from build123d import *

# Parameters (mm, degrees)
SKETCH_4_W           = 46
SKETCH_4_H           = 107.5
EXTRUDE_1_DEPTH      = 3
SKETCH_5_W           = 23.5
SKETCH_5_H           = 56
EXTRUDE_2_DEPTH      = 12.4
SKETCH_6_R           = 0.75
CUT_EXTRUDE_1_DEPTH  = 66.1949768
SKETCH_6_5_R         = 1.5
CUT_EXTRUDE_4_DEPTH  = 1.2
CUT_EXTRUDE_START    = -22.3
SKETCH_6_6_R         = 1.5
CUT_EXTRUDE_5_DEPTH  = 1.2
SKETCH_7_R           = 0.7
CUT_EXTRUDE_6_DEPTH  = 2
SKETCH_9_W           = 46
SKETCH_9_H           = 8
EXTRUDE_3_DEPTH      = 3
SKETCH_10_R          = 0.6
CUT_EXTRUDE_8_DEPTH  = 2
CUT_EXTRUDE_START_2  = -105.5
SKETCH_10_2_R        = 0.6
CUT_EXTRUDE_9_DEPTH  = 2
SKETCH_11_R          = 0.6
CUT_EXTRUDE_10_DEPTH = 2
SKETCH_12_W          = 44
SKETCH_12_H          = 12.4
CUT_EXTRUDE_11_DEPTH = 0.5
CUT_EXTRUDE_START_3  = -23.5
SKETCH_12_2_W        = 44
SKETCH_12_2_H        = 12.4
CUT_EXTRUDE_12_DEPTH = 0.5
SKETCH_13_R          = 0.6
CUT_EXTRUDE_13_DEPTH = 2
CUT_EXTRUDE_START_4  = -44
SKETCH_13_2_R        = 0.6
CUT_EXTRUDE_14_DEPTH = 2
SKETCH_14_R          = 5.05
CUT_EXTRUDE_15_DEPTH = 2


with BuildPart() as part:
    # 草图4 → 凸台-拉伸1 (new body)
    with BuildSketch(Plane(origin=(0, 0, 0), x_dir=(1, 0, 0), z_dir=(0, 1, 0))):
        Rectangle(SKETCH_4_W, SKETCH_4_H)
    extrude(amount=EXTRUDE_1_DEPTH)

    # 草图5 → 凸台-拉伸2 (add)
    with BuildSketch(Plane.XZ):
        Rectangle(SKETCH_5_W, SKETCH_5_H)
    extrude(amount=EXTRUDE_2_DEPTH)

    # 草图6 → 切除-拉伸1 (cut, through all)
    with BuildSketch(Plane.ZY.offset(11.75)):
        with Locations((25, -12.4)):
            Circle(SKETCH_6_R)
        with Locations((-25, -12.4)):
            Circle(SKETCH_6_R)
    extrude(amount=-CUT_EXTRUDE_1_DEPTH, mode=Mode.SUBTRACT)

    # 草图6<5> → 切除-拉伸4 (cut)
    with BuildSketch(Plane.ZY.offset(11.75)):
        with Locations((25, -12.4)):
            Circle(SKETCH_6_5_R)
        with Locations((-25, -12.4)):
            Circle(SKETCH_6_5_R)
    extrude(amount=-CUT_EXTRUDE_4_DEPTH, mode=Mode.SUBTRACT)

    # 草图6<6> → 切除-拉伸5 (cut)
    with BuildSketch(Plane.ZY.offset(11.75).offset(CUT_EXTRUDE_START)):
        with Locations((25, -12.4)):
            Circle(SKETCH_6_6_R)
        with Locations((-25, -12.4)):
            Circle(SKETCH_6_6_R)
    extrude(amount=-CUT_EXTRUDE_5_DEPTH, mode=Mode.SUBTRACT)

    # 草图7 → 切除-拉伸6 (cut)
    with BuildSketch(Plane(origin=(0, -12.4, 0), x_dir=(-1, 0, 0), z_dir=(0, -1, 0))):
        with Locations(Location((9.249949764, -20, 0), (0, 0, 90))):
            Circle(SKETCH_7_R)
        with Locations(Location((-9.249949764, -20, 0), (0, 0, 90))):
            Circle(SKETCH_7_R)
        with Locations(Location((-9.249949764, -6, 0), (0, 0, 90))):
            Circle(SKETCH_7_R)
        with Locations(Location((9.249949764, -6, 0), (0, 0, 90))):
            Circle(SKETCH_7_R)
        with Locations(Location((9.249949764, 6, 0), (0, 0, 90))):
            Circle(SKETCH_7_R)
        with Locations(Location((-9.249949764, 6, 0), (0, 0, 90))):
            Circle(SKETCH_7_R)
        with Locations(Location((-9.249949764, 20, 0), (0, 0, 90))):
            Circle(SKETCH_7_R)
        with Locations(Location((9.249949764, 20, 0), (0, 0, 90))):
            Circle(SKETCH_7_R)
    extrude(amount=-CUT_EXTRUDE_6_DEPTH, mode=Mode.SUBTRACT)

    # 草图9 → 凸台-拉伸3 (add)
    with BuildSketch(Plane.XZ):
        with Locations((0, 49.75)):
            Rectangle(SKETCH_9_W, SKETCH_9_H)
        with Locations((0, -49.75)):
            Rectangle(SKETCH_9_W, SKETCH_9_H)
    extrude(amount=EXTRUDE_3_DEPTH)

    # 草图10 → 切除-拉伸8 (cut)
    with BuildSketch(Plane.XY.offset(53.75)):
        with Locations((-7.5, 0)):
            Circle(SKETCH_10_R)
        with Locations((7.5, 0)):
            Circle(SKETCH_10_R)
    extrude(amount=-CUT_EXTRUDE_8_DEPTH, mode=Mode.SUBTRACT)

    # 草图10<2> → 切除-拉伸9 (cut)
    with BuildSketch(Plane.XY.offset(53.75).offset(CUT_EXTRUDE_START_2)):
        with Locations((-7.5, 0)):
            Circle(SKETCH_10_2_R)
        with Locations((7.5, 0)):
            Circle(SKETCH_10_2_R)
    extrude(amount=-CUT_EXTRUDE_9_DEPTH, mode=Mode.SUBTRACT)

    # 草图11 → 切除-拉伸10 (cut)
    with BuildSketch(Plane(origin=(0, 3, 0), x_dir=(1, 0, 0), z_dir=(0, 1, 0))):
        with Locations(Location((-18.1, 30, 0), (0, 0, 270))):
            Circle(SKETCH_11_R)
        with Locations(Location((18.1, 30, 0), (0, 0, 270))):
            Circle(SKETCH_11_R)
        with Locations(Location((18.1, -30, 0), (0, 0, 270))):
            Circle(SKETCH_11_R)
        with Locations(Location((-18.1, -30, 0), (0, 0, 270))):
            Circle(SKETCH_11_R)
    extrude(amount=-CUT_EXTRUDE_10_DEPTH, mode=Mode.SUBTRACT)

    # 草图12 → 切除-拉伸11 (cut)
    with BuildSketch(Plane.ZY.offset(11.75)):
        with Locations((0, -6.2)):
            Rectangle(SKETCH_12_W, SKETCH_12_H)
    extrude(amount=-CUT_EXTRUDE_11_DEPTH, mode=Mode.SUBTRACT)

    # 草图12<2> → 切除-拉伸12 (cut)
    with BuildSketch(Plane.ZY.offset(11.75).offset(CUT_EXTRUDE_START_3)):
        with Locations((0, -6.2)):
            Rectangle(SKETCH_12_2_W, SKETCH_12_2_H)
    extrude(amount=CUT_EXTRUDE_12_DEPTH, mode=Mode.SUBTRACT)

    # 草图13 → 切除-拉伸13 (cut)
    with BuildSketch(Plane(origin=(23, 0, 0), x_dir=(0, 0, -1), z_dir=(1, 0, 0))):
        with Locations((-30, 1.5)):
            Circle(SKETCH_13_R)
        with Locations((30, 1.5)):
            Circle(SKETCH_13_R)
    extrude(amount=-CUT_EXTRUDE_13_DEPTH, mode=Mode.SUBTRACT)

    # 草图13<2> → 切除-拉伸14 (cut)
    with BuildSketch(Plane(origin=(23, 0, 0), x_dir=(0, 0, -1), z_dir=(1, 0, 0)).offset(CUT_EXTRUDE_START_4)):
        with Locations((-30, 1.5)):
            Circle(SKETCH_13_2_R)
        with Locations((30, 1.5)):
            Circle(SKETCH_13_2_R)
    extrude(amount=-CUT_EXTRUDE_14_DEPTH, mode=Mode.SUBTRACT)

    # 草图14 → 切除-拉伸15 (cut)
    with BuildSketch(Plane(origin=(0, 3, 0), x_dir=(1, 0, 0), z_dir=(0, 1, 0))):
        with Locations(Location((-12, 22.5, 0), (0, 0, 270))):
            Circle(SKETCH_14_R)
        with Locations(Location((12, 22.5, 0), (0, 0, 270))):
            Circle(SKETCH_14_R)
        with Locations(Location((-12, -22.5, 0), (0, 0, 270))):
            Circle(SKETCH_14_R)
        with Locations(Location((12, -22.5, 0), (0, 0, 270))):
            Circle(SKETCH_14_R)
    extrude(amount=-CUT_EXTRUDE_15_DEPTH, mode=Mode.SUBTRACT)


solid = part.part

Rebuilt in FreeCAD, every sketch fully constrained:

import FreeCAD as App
import Part
import Sketcher

V = App.Vector
Q = App.Units.Quantity

doc = App.newDocument("Part")
body = doc.addObject("PartDesign::Body", "Body")

# Sketch on XZ plane
sketch1 = body.newObject("Sketcher::SketchObject", "Sketch")
sketch1.AttachmentSupport = (doc.getObject("XZ_Plane"), [""])
sketch1.MapMode = "FlatFace"
sketch1.addGeometry([
    Part.LineSegment(V(-23, -54, 0), V(-23, 54, 0)),
    Part.LineSegment(V(-23, 54, 0), V(23, 54, 0)),
    Part.LineSegment(V(23, 54, 0), V(23, -54, 0)),
    Part.LineSegment(V(23, -54, 0), V(-23, -54, 0)),
], False)
sketch1.addConstraint([
    Sketcher.Constraint("Coincident", 0, 2, 1, 1),
    Sketcher.Constraint("Coincident", 1, 2, 2, 1),
    Sketcher.Constraint("Coincident", 2, 2, 3, 1),
    Sketcher.Constraint("Coincident", 3, 2, 0, 1),
    Sketcher.Constraint("Vertical", 0),
    Sketcher.Constraint("Horizontal", 1),
    Sketcher.Constraint("Vertical", 2),
    Sketcher.Constraint("Horizontal", 3),
    Sketcher.Constraint("Symmetric", 0, 2, 2, 2, -1, 1),
    Sketcher.Constraint("DistanceX", 1, 1, 1, 2, Q("46 mm")),
    Sketcher.Constraint("DistanceY", 0, 1, 0, 2, Q("107.5 mm")),
])
pad1 = body.newObject("PartDesign::Pad", "Pad")
pad1.Profile = sketch1
pad1.Length = 3
pad1.Reversed = True

# Sketch on XZ plane
sketch2 = body.newObject("Sketcher::SketchObject", "Sketch001")
sketch2.AttachmentSupport = (doc.getObject("XZ_Plane"), [""])
sketch2.MapMode = "FlatFace"
sketch2.addGeometry([
    Part.LineSegment(V(-12, 28, 0), V(-12, -28, 0)),
    Part.LineSegment(V(-12, -28, 0), V(12, -28, 0)),
    Part.LineSegment(V(12, -28, 0), V(12, 28, 0)),
    Part.LineSegment(V(12, 28, 0), V(-12, 28, 0)),
], False)
sketch2.addConstraint([
    Sketcher.Constraint("Coincident", 0, 2, 1, 1),
    Sketcher.Constraint("Coincident", 1, 2, 2, 1),
    Sketcher.Constraint("Coincident", 2, 2, 3, 1),
    Sketcher.Constraint("Coincident", 3, 2, 0, 1),
    Sketcher.Constraint("Vertical", 0),
    Sketcher.Constraint("Horizontal", 1),
    Sketcher.Constraint("Vertical", 2),
    Sketcher.Constraint("Horizontal", 3),
    Sketcher.Constraint("Symmetric", 0, 2, 2, 2, -1, 1),
    Sketcher.Constraint("DistanceY", 0, 2, 0, 1, Q("56 mm")),
    Sketcher.Constraint("DistanceX", 1, 1, 1, 2, Q("23.5 mm")),
])
pad2 = body.newObject("PartDesign::Pad", "Pad001")
pad2.Profile = sketch2
pad2.Length = 12.4

# Sketch on YZ plane
sketch3 = body.newObject("Sketcher::SketchObject", "Sketch002")
sketch3.AttachmentSupport = (doc.getObject("YZ_Plane"), [""])
sketch3.MapMode = "FlatFace"
sketch3.AttachmentOffset = App.Placement(V(0, 0, -11.75), App.Rotation())
sketch3.addGeometry([
    Part.Circle(V(-12.4, 25, 0), V(0, 0, 1), 0.8),
    Part.Circle(V(-12.4, -25, 0), V(0, 0, 1), 0.8),
], False)
sketch3.addConstraint([
    Sketcher.Constraint("Equal", 0, 1),
    Sketcher.Constraint("Symmetric", 0, 3, 1, 3, -1),
    Sketcher.Constraint("Diameter", 0, Q("1.5 mm")),
    Sketcher.Constraint("DistanceY", -1, 1, 0, 3, Q("25 mm")),
    Sketcher.Constraint("DistanceX", 0, 3, -1, 1, Q("12.4 mm")),
])
pocket1 = body.newObject("PartDesign::Pocket", "Pocket")
pocket1.Profile = sketch3
pocket1.Type = "ThroughAll"
pocket1.Reversed = True

# Sketch on YZ plane
sketch4 = body.newObject("Sketcher::SketchObject", "Sketch003")
sketch4.AttachmentSupport = (doc.getObject("YZ_Plane"), [""])
sketch4.MapMode = "FlatFace"
sketch4.AttachmentOffset = App.Placement(V(0, 0, -11.75), App.Rotation())
sketch4.addGeometry([
    Part.Circle(V(-12.4, 25, 0), V(0, 0, 1), 1.5),
    Part.Circle(V(-12.4, -25, 0), V(0, 0, 1), 1.5),
], False)
sketch4.addConstraint([
    Sketcher.Constraint("Equal", 0, 1),
    Sketcher.Constraint("Symmetric", 0, 3, 1, 3, -1),
    Sketcher.Constraint("Diameter", 0, Q("3 mm")),
    Sketcher.Constraint("DistanceY", -1, 1, 0, 3, Q("25 mm")),
    Sketcher.Constraint("DistanceX", 0, 3, -1, 1, Q("12.4 mm")),
])
pocket2 = body.newObject("PartDesign::Pocket", "Pocket001")
pocket2.Profile = sketch4
pocket2.Length = 1.2
pocket2.Reversed = True

# Sketch on YZ plane
sketch5 = body.newObject("Sketcher::SketchObject", "Sketch004")
sketch5.AttachmentSupport = (doc.getObject("YZ_Plane"), [""])
sketch5.MapMode = "FlatFace"
sketch5.AttachmentOffset = App.Placement(V(0, 0, 10.55), App.Rotation())
sketch5.addGeometry([
    Part.Circle(V(-12.4, 25, 0), V(0, 0, 1), 1.5),
    Part.Circle(V(-12.4, -25, 0), V(0, 0, 1), 1.5),
], False)
sketch5.addConstraint([
    Sketcher.Constraint("Equal", 0, 1),
    Sketcher.Constraint("Symmetric", 0, 3, 1, 3, -1),
    Sketcher.Constraint("Diameter", 0, Q("3 mm")),
    Sketcher.Constraint("DistanceY", -1, 1, 0, 3, Q("25 mm")),
    Sketcher.Constraint("DistanceX", 0, 3, -1, 1, Q("12.4 mm")),
])
pocket3 = body.newObject("PartDesign::Pocket", "Pocket002")
pocket3.Profile = sketch5
pocket3.Length = 1.2
pocket3.Reversed = True

# Sketch on XZ plane
sketch6 = body.newObject("Sketcher::SketchObject", "Sketch005")
sketch6.AttachmentSupport = (doc.getObject("XZ_Plane"), [""])
sketch6.MapMode = "FlatFace"
sketch6.AttachmentOffset = App.Placement(V(0, 0, 12.4), App.Rotation())
sketch6.addGeometry([
    Part.Circle(V(-9.2, 20, 0), V(0, 0, 1), 0.7),  # 0
    Part.Circle(V(9.2, 20, 0), V(0, 0, 1), 0.7),  # 1
    Part.Circle(V(9.2, 6, 0), V(0, 0, 1), 0.7),  # 2
    Part.Circle(V(-9.2, 6, 0), V(0, 0, 1), 0.7),  # 3
    Part.Circle(V(-9.2, -6, 0), V(0, 0, 1), 0.7),  # 4
    Part.Circle(V(9.2, -6, 0), V(0, 0, 1), 0.7),  # 5
    Part.Circle(V(9.2, -20, 0), V(0, 0, 1), 0.7),  # 6
    Part.Circle(V(-9.2, -20, 0), V(0, 0, 1), 0.7),  # 7
], False)
sketch6.addConstraint([
    Sketcher.Constraint("Equal", 0, 1),
    Sketcher.Constraint("Equal", 1, 2),
    Sketcher.Constraint("Equal", 2, 3),
    Sketcher.Constraint("Equal", 3, 4),
    Sketcher.Constraint("Equal", 4, 5),
    Sketcher.Constraint("Equal", 5, 6),
    Sketcher.Constraint("Equal", 6, 7),
    Sketcher.Constraint("Symmetric", 2, 3, 4, 3, -1, 1),
    Sketcher.Constraint("Symmetric", 3, 3, 5, 3, -1, 1),
    Sketcher.Constraint("Symmetric", 0, 3, 6, 3, -1, 1),
    Sketcher.Constraint("Symmetric", 1, 3, 7, 3, -1, 1),
    Sketcher.Constraint("Symmetric", 0, 3, 1, 3, -2),
    Sketcher.Constraint("Symmetric", 2, 3, 3, 3, -2),
    Sketcher.Constraint("Vertical", 1, 3, 2, 3),
    Sketcher.Constraint("Diameter", 0, Q("1.4 mm")),
    Sketcher.Constraint("DistanceY", -1, 1, 0, 3, Q("20 mm")),
    Sketcher.Constraint("DistanceY", -1, 1, 2, 3, Q("6 mm")),
    Sketcher.Constraint("DistanceX", 0, 3, 1, 3, Q("18.4999 mm")),
])
pocket4 = body.newObject("PartDesign::Pocket", "Pocket003")
pocket4.Profile = sketch6
pocket4.Length = 2

# Sketch on XZ plane
sketch7 = body.newObject("Sketcher::SketchObject", "Sketch006")
sketch7.AttachmentSupport = (doc.getObject("XZ_Plane"), [""])
sketch7.MapMode = "FlatFace"
sketch7.addGeometry([
    Part.LineSegment(V(-23, 54, 0), V(-23, 46, 0)),  # 0
    Part.LineSegment(V(-23, 46, 0), V(23, 46, 0)),  # 1
    Part.LineSegment(V(23, 46, 0), V(23, 54, 0)),  # 2
    Part.LineSegment(V(23, 54, 0), V(-23, 54, 0)),  # 3
    Part.LineSegment(V(-23, -46, 0), V(-23, -54, 0)),  # 4
    Part.LineSegment(V(-23, -54, 0), V(23, -54, 0)),  # 5
    Part.LineSegment(V(23, -54, 0), V(23, -46, 0)),  # 6
    Part.LineSegment(V(23, -46, 0), V(-23, -46, 0)),  # 7
], False)
sketch7.addConstraint([
    Sketcher.Constraint("Coincident", 0, 2, 1, 1),
    Sketcher.Constraint("Coincident", 1, 2, 2, 1),
    Sketcher.Constraint("Coincident", 2, 2, 3, 1),
    Sketcher.Constraint("Coincident", 3, 2, 0, 1),
    Sketcher.Constraint("Coincident", 4, 2, 5, 1),
    Sketcher.Constraint("Coincident", 5, 2, 6, 1),
    Sketcher.Constraint("Coincident", 6, 2, 7, 1),
    Sketcher.Constraint("Coincident", 7, 2, 4, 1),
    Sketcher.Constraint("Vertical", 0),
    Sketcher.Constraint("Horizontal", 1),
    Sketcher.Constraint("Vertical", 2),
    Sketcher.Constraint("Horizontal", 3),
    Sketcher.Constraint("Vertical", 4),
    Sketcher.Constraint("Horizontal", 5),
    Sketcher.Constraint("Vertical", 6),
    Sketcher.Constraint("Horizontal", 7),
    Sketcher.Constraint("Symmetric", 2, 2, 4, 2, -1, 1),
    Sketcher.Constraint("Symmetric", 0, 2, 6, 2, -1, 1),
    Sketcher.Constraint("Vertical", 3, 2, 4, 2),
    Sketcher.Constraint("DistanceX", 1, 1, 1, 2, Q("46 mm")),
    Sketcher.Constraint("DistanceY", 0, 2, 0, 1, Q("8 mm")),
    Sketcher.Constraint("DistanceY", 4, 2, 0, 2, Q("99.5 mm")),
])
pad3 = body.newObject("PartDesign::Pad", "Pad002")
pad3.Profile = sketch7
pad3.Length = 3

# Sketch on XY plane
sketch8 = body.newObject("Sketcher::SketchObject", "Sketch007")
sketch8.AttachmentSupport = (doc.getObject("XY_Plane"), [""])
sketch8.MapMode = "FlatFace"
sketch8.AttachmentOffset = App.Placement(V(0, 0, 53.75), App.Rotation())
sketch8.addGeometry([
    Part.Circle(V(-7.5, 0, 0), V(0, 0, 1), 0.6),
    Part.Circle(V(7.5, 0, 0), V(0, 0, 1), 0.6),
], False)
sketch8.addConstraint([
    Sketcher.Constraint("Equal", 0, 1),
    Sketcher.Constraint("Symmetric", 0, 3, 1, 3, -1, 1),
    Sketcher.Constraint("PointOnObject", 0, 3, -1),
    Sketcher.Constraint("Diameter", 0, Q("1.2 mm")),
    Sketcher.Constraint("DistanceX", 0, 3, 1, 3, Q("15 mm")),
])
pocket5 = body.newObject("PartDesign::Pocket", "Pocket004")
pocket5.Profile = sketch8
pocket5.Length = 2

# Sketch on XY plane
sketch9 = body.newObject("Sketcher::SketchObject", "Sketch008")
sketch9.AttachmentSupport = (doc.getObject("XY_Plane"), [""])
sketch9.MapMode = "FlatFace"
sketch9.AttachmentOffset = App.Placement(V(0, 0, -51.75), App.Rotation())
sketch9.addGeometry([
    Part.Circle(V(-7.5, 0, 0), V(0, 0, 1), 0.6),
    Part.Circle(V(7.5, 0, 0), V(0, 0, 1), 0.6),
], False)
sketch9.addConstraint([
    Sketcher.Constraint("Equal", 0, 1),
    Sketcher.Constraint("Symmetric", 0, 3, 1, 3, -1, 1),
    Sketcher.Constraint("PointOnObject", 0, 3, -1),
    Sketcher.Constraint("Diameter", 0, Q("1.2 mm")),
    Sketcher.Constraint("DistanceX", 0, 3, 1, 3, Q("15 mm")),
])
pocket6 = body.newObject("PartDesign::Pocket", "Pocket005")
pocket6.Profile = sketch9
pocket6.Length = 2

# Sketch on XZ plane
sketch10 = body.newObject("Sketcher::SketchObject", "Sketch009")
sketch10.AttachmentSupport = (doc.getObject("XZ_Plane"), [""])
sketch10.MapMode = "FlatFace"
sketch10.AttachmentOffset = App.Placement(V(0, 0, -3), App.Rotation())
sketch10.addGeometry([
    Part.Circle(V(-18.1, -30, 0), V(0, 0, 1), 0.6),
    Part.Circle(V(18.1, -30, 0), V(0, 0, 1), 0.6),
    Part.Circle(V(18.1, 30, 0), V(0, 0, 1), 0.6),
    Part.Circle(V(-18.1, 30, 0), V(0, 0, 1), 0.6),
], False)
sketch10.addConstraint([
    Sketcher.Constraint("Equal", 0, 1),
    Sketcher.Constraint("Equal", 1, 2),
    Sketcher.Constraint("Equal", 2, 3),
    Sketcher.Constraint("Symmetric", 0, 3, 2, 3, -1, 1),
    Sketcher.Constraint("Symmetric", 1, 3, 3, 3, -1, 1),
    Sketcher.Constraint("Symmetric", 0, 3, 1, 3, -2),
    Sketcher.Constraint("Diameter", 0, Q("1.2 mm")),
    Sketcher.Constraint("DistanceY", 0, 3, -1, 1, Q("30 mm")),
    Sketcher.Constraint("DistanceX", 0, 3, -1, 1, Q("18.1 mm")),
])
pocket7 = body.newObject("PartDesign::Pocket", "Pocket006")
pocket7.Profile = sketch10
pocket7.Length = 2
pocket7.Reversed = True

# Sketch on YZ plane
sketch11 = body.newObject("Sketcher::SketchObject", "Sketch010")
sketch11.AttachmentSupport = (doc.getObject("YZ_Plane"), [""])
sketch11.MapMode = "FlatFace"
sketch11.AttachmentOffset = App.Placement(V(0, 0, -11.75), App.Rotation())
sketch11.addGeometry([
    Part.LineSegment(V(0, -22, 0), V(-12, -22, 0)),
    Part.LineSegment(V(-12, -22, 0), V(-12, 22, 0)),
    Part.LineSegment(V(-12, 22, 0), V(0, 22, 0)),
    Part.LineSegment(V(0, 22, 0), V(0, -22, 0)),
], False)
sketch11.addConstraint([
    Sketcher.Constraint("Coincident", 0, 2, 1, 1),
    Sketcher.Constraint("Coincident", 1, 2, 2, 1),
    Sketcher.Constraint("Coincident", 2, 2, 3, 1),
    Sketcher.Constraint("Coincident", 3, 2, 0, 1),
    Sketcher.Constraint("Horizontal", 0),
    Sketcher.Constraint("Vertical", 1),
    Sketcher.Constraint("Horizontal", 2),
    Sketcher.Constraint("Vertical", 3),
    Sketcher.Constraint("Symmetric", 2, 2, 3, 2, -1, 1),
    Sketcher.Constraint("DistanceY", 1, 1, 1, 2, Q("44 mm")),
    Sketcher.Constraint("DistanceX", 0, 2, 0, 1, Q("12.4 mm")),
])
pocket8 = body.newObject("PartDesign::Pocket", "Pocket007")
pocket8.Profile = sketch11
pocket8.Length = 0.5
pocket8.Reversed = True

# Sketch on YZ plane
sketch12 = body.newObject("Sketcher::SketchObject", "Sketch011")
sketch12.AttachmentSupport = (doc.getObject("YZ_Plane"), [""])
sketch12.MapMode = "FlatFace"
sketch12.AttachmentOffset = App.Placement(V(0, 0, 11.75), App.Rotation())
sketch12.addGeometry([
    Part.LineSegment(V(0, -22, 0), V(-12, -22, 0)),
    Part.LineSegment(V(-12, -22, 0), V(-12, 22, 0)),
    Part.LineSegment(V(-12, 22, 0), V(0, 22, 0)),
    Part.LineSegment(V(0, 22, 0), V(0, -22, 0)),
], False)
sketch12.addConstraint([
    Sketcher.Constraint("Coincident", 0, 2, 1, 1),
    Sketcher.Constraint("Coincident", 1, 2, 2, 1),
    Sketcher.Constraint("Coincident", 2, 2, 3, 1),
    Sketcher.Constraint("Coincident", 3, 2, 0, 1),
    Sketcher.Constraint("Horizontal", 0),
    Sketcher.Constraint("Vertical", 1),
    Sketcher.Constraint("Horizontal", 2),
    Sketcher.Constraint("Vertical", 3),
    Sketcher.Constraint("Symmetric", 2, 2, 3, 2, -1, 1),
    Sketcher.Constraint("DistanceY", 1, 1, 1, 2, Q("44 mm")),
    Sketcher.Constraint("DistanceX", 0, 2, 0, 1, Q("12.4 mm")),
])
pocket9 = body.newObject("PartDesign::Pocket", "Pocket008")
pocket9.Profile = sketch12
pocket9.Length = 0.5

# Sketch on YZ plane
sketch13 = body.newObject("Sketcher::SketchObject", "Sketch012")
sketch13.AttachmentSupport = (doc.getObject("YZ_Plane"), [""])
sketch13.MapMode = "FlatFace"
sketch13.AttachmentOffset = App.Placement(V(0, 0, 23), App.Rotation())
sketch13.addGeometry([
    Part.Circle(V(1.5, 30, 0), V(0, 0, 1), 0.6),
    Part.Circle(V(1.5, -30, 0), V(0, 0, 1), 0.6),
], False)
sketch13.addConstraint([
    Sketcher.Constraint("Equal", 0, 1),
    Sketcher.Constraint("Symmetric", 0, 3, 1, 3, -1),
    Sketcher.Constraint("Diameter", 0, Q("1.2 mm")),
    Sketcher.Constraint("DistanceY", -1, 1, 0, 3, Q("30 mm")),
    Sketcher.Constraint("DistanceX", -1, 1, 0, 3, Q("1.5 mm")),
])
pocket10 = body.newObject("PartDesign::Pocket", "Pocket009")
pocket10.Profile = sketch13
pocket10.Length = 2

# Sketch on YZ plane
sketch14 = body.newObject("Sketcher::SketchObject", "Sketch013")
sketch14.AttachmentSupport = (doc.getObject("YZ_Plane"), [""])
sketch14.MapMode = "FlatFace"
sketch14.AttachmentOffset = App.Placement(V(0, 0, -21), App.Rotation())
sketch14.addGeometry([
    Part.Circle(V(1.5, 30, 0), V(0, 0, 1), 0.6),
    Part.Circle(V(1.5, -30, 0), V(0, 0, 1), 0.6),
], False)
sketch14.addConstraint([
    Sketcher.Constraint("Equal", 0, 1),
    Sketcher.Constraint("Symmetric", 0, 3, 1, 3, -1),
    Sketcher.Constraint("Diameter", 0, Q("1.2 mm")),
    Sketcher.Constraint("DistanceY", -1, 1, 0, 3, Q("30 mm")),
    Sketcher.Constraint("DistanceX", -1, 1, 0, 3, Q("1.5 mm")),
])
pocket11 = body.newObject("PartDesign::Pocket", "Pocket010")
pocket11.Profile = sketch14
pocket11.Length = 2

# Sketch on XZ plane
sketch15 = body.newObject("Sketcher::SketchObject", "Sketch014")
sketch15.AttachmentSupport = (doc.getObject("XZ_Plane"), [""])
sketch15.MapMode = "FlatFace"
sketch15.AttachmentOffset = App.Placement(V(0, 0, -3), App.Rotation())
sketch15.addGeometry([
    Part.Circle(V(-12, -22, 0), V(0, 0, 1), 5),
    Part.Circle(V(12, -22, 0), V(0, 0, 1), 5),
    Part.Circle(V(-12, 22, 0), V(0, 0, 1), 5),
    Part.Circle(V(12, 22, 0), V(0, 0, 1), 5),
], False)
sketch15.addConstraint([
    Sketcher.Constraint("Equal", 0, 1),
    Sketcher.Constraint("Equal", 1, 2),
    Sketcher.Constraint("Equal", 2, 3),
    Sketcher.Constraint("Symmetric", 1, 3, 2, 3, -1, 1),
    Sketcher.Constraint("Symmetric", 0, 3, 3, 3, -1, 1),
    Sketcher.Constraint("Symmetric", 0, 3, 1, 3, -2),
    Sketcher.Constraint("Diameter", 0, Q("10.1 mm")),
    Sketcher.Constraint("DistanceX", 0, 3, -1, 1, Q("12 mm")),
    Sketcher.Constraint("DistanceY", 0, 3, 2, 3, Q("45 mm")),
])
pocket12 = body.newObject("PartDesign::Pocket", "Pocket011")
pocket12.Profile = sketch15
pocket12.Length = 2
pocket12.Reversed = True

doc.recompute()
